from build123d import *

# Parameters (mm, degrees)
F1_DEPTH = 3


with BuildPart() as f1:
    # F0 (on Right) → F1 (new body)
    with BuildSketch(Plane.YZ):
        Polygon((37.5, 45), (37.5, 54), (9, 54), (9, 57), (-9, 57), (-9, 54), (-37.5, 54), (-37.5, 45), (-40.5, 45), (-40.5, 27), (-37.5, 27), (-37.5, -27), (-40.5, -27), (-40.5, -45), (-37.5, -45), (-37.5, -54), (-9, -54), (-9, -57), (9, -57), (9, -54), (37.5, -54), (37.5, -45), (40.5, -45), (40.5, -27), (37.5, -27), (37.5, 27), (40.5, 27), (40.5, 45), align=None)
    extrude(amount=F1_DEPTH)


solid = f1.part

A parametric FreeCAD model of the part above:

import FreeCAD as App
import Part
import Sketcher
from FreeCAD import Vector
Q = App.Units.Quantity


def add_polygon(sketch, points):
    """Adds a closed chain of lines whose ends are joined by coincident constraints."""
    first, n = sketch.GeometryCount, len(points)
    for a, b in zip(points, points[1:] + points[:1]):
        sketch.addGeometry(Part.LineSegment(App.Vector(*a, 0), App.Vector(*b, 0)), False)
    for i in range(n):
        sketch.addConstraint(Sketcher.Constraint("Coincident", first + i, 2, first + (i + 1) % n, 1))

doc = App.newDocument("Part")
body = doc.addObject("PartDesign::Body", "Body")

sketch1 = body.newObject("Sketcher::SketchObject", "Sketch")
sketch1.AttachmentSupport = (doc.getObject("YZ_Plane"), [""])
sketch1.MapMode = "FlatFace"
add_polygon(sketch1, [(37.5, 45), (37.5, 54), (9, 54), (9, 57), (-9, 57), (-9, 54), (-37.5, 54), (-37.5, 45), (-40.5, 45), (-40.5, 27), (-37.5, 27), (-37.5, -27), (-40.5, -27), (-40.5, -45), (-37.5, -45), (-37.5, -54), (-9, -54), (-9, -57), (9, -57), (9, -54), (37.5, -54), (37.5, -45), (40.5, -45), (40.5, -27), (37.5, -27), (37.5, 27), (40.5, 27), (40.5, 45)])
sketch1.addConstraint(Sketcher.Constraint("Vertical", 0))
sketch1.addConstraint(Sketcher.Constraint("Horizontal", 1))
sketch1.addConstraint(Sketcher.Constraint("Vertical", 2))
sketch1.addConstraint(Sketcher.Constraint("Horizontal", 3))
sketch1.addConstraint(Sketcher.Constraint("Vertical", 4))
sketch1.addConstraint(Sketcher.Constraint("Horizontal", 5))
sketch1.addConstraint(Sketcher.Constraint("Vertical", 6))
sketch1.addConstraint(Sketcher.Constraint("Horizontal", 7))
sketch1.addConstraint(Sketcher.Constraint("Vertical", 8))
sketch1.addConstraint(Sketcher.Constraint("Horizontal", 9))
sketch1.addConstraint(Sketcher.Constraint("Vertical", 10))
sketch1.addConstraint(Sketcher.Constraint("Horizontal", 11))
sketch1.addConstraint(Sketcher.Constraint("Vertical", 12))
sketch1.addConstraint(Sketcher.Constraint("Horizontal", 13))
sketch1.addConstraint(Sketcher.Constraint("Vertical", 14))
sketch1.addConstraint(Sketcher.Constraint("Horizontal", 15))
sketch1.addConstraint(Sketcher.Constraint("Vertical", 16))
sketch1.addConstraint(Sketcher.Constraint("Horizontal", 17))
sketch1.addConstraint(Sketcher.Constraint("Vertical", 18))
sketch1.addConstraint(Sketcher.Constraint("Horizontal", 19))
sketch1.addConstraint(Sketcher.Constraint("Vertical", 20))
sketch1.addConstraint(Sketcher.Constraint("Horizontal", 21))
sketch1.addConstraint(Sketcher.Constraint("Vertical", 22))
sketch1.addConstraint(Sketcher.Constraint("Horizontal", 23))
sketch1.addConstraint(Sketcher.Constraint("Vertical", 24))
sketch1.addConstraint(Sketcher.Constraint("Horizontal", 25))
sketch1.addConstraint(Sketcher.Constraint("Vertical", 26))
sketch1.addConstraint(Sketcher.Constraint("Horizontal", 27))
sketch1.addConstraint(Sketcher.Constraint("Symmetric", 0, 2, 14, 2, -1, 1))
sketch1.addConstraint(Sketcher.Constraint("Symmetric", 2, 2, 16, 2, -1, 1))
sketch1.addConstraint(Sketcher.Constraint("Symmetric", 4, 2, 18, 2, -1, 1))
sketch1.addConstraint(Sketcher.Constraint("Symmetric", 6, 2, 20, 2, -1, 1))
sketch1.addConstraint(Sketcher.Constraint("Symmetric", 8, 2, 22, 2, -1, 1))
sketch1.addConstraint(Sketcher.Constraint("Symmetric", 10, 2, 24, 2, -1, 1))
sketch1.addConstraint(Sketcher.Constraint("Symmetric", 12, 2, 26, 2, -1, 1))
sketch1.addConstraint(Sketcher.Constraint("Symmetric", 1, 2, 4, 2, -2))
sketch1.addConstraint(Sketcher.Constraint("Symmetric", 13, 2, 20, 2, -2))
sketch1.addConstraint(Sketcher.Constraint("Symmetric", 11, 2, 22, 2, -2))
sketch1.addConstraint(Sketcher.Constraint("Vertical", 6, 2, 9, 2))
sketch1.addConstraint(Sketcher.Constraint("Equal", 27, 2))
sketch1.addConstraint(Sketcher.Constraint("Equal", 17, 8))
sketch1.addConstraint(Sketcher.Constraint("DistanceX", 3, 2, 3, 1, Q("18 mm")))
sketch1.addConstraint(Sketcher.Constraint("DistanceX", 7, 2, 7, 1, Q("3 mm")))
sketch1.addConstraint(Sketcher.Constraint("DistanceY", 0, 1, 0, 2, Q("9 mm")))
sketch1.addConstraint(Sketcher.Constraint("DistanceY", 10, 2, 10, 1, Q("54 mm")))
sketch1.addConstraint(Sketcher.Constraint("DistanceX", 1, 2, 1, 1, Q("28.5 mm")))
pad1 = body.newObject("PartDesign::Pad", "Pad")
pad1.Profile = sketch1
pad1.Length = 3

doc.recompute()
